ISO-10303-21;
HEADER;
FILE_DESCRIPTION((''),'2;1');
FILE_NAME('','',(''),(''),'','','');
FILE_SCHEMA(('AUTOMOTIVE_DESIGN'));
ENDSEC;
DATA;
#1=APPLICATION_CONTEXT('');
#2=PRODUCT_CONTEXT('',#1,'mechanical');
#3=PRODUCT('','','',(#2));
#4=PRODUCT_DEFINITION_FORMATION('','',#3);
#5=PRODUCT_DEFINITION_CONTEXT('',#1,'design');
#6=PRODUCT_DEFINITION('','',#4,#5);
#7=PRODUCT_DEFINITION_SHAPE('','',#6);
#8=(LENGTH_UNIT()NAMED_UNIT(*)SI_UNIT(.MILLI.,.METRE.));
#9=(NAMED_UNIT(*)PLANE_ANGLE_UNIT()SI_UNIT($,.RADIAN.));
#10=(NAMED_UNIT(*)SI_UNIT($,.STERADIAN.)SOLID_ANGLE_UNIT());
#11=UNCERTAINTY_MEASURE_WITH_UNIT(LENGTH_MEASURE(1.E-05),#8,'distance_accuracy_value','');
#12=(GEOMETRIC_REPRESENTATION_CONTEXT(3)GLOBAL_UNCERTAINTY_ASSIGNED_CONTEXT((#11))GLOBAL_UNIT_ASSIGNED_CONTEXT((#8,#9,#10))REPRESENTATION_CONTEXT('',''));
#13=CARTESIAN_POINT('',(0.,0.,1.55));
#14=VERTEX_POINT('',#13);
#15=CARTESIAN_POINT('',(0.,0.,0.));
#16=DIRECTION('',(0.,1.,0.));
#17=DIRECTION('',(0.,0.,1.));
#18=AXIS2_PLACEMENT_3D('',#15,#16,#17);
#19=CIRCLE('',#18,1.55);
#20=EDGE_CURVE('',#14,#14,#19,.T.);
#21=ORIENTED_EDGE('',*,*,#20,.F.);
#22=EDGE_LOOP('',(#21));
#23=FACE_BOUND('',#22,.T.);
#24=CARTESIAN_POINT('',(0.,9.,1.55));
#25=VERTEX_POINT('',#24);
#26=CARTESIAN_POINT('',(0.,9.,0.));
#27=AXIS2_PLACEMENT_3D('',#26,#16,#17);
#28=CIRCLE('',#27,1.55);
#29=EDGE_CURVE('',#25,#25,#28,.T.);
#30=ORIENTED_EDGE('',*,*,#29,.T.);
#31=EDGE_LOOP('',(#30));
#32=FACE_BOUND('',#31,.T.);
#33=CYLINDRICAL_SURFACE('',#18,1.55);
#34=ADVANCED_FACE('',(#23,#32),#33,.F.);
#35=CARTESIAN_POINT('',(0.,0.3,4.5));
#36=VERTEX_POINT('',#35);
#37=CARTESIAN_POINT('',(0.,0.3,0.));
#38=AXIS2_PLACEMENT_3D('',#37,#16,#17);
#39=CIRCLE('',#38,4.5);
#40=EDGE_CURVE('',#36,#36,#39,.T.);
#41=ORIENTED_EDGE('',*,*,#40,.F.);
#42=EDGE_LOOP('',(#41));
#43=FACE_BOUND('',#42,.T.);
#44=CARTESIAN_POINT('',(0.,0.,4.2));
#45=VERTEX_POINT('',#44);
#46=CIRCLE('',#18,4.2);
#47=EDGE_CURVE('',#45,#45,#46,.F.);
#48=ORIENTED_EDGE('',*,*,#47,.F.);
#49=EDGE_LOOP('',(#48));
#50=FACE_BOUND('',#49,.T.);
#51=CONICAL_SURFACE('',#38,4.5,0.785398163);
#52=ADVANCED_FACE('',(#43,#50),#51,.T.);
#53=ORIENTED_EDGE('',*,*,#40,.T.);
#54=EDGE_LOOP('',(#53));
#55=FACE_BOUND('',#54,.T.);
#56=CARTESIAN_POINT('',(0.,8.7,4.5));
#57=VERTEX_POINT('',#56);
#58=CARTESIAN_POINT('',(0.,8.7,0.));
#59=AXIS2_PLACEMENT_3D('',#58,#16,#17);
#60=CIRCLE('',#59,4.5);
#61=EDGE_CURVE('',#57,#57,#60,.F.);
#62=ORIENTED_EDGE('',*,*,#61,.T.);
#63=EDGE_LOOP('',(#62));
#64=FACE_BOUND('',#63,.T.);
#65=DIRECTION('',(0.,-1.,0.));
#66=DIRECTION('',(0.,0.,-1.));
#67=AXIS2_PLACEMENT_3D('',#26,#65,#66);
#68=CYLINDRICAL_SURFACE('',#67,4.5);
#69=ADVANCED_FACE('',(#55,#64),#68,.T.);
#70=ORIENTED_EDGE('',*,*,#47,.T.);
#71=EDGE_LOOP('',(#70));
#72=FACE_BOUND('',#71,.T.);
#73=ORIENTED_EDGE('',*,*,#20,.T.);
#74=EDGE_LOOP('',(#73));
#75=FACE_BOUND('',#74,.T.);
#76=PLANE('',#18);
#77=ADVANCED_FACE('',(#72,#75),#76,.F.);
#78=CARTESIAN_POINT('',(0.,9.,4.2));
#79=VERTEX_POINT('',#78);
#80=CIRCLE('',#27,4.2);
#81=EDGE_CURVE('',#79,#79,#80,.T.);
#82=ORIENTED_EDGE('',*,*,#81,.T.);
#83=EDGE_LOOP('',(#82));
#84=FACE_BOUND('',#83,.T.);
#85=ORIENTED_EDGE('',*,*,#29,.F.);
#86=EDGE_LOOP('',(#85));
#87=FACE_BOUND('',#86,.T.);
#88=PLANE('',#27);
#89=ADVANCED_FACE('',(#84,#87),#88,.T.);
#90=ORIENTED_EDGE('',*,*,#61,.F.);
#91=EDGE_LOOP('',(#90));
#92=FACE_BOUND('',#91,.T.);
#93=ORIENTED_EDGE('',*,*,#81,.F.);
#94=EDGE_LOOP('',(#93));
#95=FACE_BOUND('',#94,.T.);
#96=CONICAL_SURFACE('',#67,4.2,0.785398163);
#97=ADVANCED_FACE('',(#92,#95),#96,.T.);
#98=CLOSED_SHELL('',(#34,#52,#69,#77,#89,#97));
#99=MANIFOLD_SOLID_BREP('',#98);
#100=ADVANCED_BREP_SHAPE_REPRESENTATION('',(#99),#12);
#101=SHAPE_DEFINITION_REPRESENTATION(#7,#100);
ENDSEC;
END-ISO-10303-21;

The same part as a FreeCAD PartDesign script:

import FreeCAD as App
import Part
import Sketcher


def edges_at(feature, points):
    """Names of the edges that pass closest to the given points."""
    edges = feature.Shape.Edges
    near = lambda p: min(range(len(edges)), key=lambda i: edges[i].distToShape(Part.Vertex(*p))[0])
    return sorted({f"Edge{near(p) + 1}" for p in points})

doc = App.newDocument("Part")
body = doc.addObject("PartDesign::Body", "Body")

# Sketch on XZ plane
sketch1 = body.newObject("Sketcher::SketchObject", "Sketch")
sketch1.AttachmentSupport = (doc.getObject("XZ_Plane"), [""])
sketch1.MapMode = "FlatFace"
sketch1.addGeometry(Part.Circle(App.Vector(0, 0, 0), App.Vector(0, 0, 1), 4.5), False)
sketch1.addConstraint([
    Sketcher.Constraint("Coincident", 0, 3, -1, 1),
    Sketcher.Constraint("Diameter", 0, 9.0),
])
pad1 = body.newObject("PartDesign::Pad", "Pad")
pad1.Profile = sketch1
pad1.Length = 9
pad1.Reversed = True
doc.recompute()

chamfer = body.newObject("PartDesign::Chamfer", "Chamfer")
chamfer.Base = (pad1, edges_at(pad1, [(0, 9, -4.5)]))
chamfer.Size = 0.3
doc.recompute()

chamfer2 = body.newObject("PartDesign::Chamfer", "Chamfer001")
chamfer2.Base = (chamfer, edges_at(chamfer, [(0, 0, -4.5)]))
chamfer2.Size = 0.3

# Sketch on XZ plane
sketch2 = body.newObject("Sketcher::SketchObject", "Sketch001")
sketch2.AttachmentSupport = (doc.getObject("XZ_Plane"), [""])
sketch2.MapMode = "FlatFace"
sketch2.AttachmentOffset = App.Placement(App.Vector(0, 0, -9), App.Rotation())
sketch2.addGeometry(Part.Circle(App.Vector(0, 0, 0), App.Vector(0, 0, 1), 1.6), False)
sketch2.addConstraint([
    Sketcher.Constraint("Coincident", 0, 3, -1, 1),
    Sketcher.Constraint("Diameter", 0, 3.1),
])
pocket1 = body.newObject("PartDesign::Pocket", "Pocket")
pocket1.Profile = sketch2
pocket1.Length = 9
pocket1.Reversed = True

doc.recompute()
